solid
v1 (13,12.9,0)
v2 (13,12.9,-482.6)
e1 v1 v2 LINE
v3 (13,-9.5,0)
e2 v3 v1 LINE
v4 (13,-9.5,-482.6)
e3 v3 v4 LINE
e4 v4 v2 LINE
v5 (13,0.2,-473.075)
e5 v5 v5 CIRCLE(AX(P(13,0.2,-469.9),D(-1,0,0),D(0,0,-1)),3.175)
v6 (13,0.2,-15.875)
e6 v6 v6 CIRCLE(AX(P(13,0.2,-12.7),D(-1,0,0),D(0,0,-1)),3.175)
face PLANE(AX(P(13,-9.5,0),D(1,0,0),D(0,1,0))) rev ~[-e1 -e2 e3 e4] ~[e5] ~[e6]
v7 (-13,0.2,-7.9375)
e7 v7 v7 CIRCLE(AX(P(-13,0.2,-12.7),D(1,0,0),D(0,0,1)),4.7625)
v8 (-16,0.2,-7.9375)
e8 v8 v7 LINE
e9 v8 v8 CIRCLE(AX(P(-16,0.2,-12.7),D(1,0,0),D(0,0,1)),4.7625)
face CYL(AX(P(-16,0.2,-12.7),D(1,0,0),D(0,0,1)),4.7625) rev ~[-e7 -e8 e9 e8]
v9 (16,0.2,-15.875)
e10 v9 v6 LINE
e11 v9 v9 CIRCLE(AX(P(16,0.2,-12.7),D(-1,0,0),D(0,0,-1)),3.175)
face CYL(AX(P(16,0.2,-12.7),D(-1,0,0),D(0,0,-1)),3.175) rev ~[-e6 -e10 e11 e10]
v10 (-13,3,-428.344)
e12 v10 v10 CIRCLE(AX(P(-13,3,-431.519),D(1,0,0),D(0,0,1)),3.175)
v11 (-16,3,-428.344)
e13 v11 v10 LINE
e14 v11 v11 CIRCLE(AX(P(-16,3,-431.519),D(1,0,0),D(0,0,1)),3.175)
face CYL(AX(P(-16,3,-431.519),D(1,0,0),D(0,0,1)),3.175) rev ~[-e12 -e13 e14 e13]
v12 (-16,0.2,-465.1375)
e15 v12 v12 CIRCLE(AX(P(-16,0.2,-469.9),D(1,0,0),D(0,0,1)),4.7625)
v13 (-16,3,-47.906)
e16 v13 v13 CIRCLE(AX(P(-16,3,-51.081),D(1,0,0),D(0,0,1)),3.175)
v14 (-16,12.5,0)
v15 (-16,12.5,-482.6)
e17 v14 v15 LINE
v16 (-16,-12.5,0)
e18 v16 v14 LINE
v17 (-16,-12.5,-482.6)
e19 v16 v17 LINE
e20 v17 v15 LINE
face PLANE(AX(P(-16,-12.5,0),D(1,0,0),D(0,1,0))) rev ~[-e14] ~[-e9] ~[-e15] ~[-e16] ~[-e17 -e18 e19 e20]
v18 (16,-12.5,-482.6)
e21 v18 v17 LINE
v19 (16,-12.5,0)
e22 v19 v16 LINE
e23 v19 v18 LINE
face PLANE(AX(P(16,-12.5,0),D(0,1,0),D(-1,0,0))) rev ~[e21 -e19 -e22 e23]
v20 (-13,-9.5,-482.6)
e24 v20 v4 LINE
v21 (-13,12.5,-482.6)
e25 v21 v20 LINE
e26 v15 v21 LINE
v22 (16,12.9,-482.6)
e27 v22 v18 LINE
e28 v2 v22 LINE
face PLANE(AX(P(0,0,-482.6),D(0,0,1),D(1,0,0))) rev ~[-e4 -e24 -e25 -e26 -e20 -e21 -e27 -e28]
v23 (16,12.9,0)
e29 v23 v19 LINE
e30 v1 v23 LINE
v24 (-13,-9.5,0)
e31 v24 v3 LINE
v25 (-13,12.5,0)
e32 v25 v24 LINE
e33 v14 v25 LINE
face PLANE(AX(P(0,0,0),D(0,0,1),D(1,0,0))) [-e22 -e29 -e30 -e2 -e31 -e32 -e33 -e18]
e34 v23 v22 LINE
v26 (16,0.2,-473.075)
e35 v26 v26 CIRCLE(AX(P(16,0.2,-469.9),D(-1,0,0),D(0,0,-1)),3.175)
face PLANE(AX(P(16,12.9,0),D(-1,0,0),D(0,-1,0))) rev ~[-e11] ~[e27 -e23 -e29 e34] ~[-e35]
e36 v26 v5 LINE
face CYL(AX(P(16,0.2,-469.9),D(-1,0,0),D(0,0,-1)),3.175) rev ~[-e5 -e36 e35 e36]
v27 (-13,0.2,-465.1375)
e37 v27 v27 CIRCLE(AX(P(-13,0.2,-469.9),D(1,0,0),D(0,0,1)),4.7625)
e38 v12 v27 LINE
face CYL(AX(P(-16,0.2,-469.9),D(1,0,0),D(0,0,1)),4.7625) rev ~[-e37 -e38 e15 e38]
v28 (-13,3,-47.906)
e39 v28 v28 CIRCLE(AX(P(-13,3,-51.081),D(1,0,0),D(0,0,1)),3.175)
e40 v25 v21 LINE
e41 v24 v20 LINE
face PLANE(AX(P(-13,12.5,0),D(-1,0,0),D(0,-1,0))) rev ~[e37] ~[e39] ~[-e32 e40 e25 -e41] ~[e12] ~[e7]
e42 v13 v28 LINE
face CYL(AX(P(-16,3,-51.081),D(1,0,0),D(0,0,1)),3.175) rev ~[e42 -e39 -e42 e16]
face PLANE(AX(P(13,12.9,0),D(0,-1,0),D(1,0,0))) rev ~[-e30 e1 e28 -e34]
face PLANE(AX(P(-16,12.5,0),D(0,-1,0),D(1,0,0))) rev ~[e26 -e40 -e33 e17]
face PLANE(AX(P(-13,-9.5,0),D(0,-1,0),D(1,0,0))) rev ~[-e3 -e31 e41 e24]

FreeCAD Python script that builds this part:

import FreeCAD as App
import Part
import Sketcher
Q = App.Units.Quantity

doc = App.newDocument("Part")
body = doc.addObject("PartDesign::Body", "Body")

# Sketch on XY plane
sketch1 = body.newObject("Sketcher::SketchObject", "Sketch")
sketch1.AttachmentSupport = (doc.getObject("XY_Plane"), [""])
sketch1.MapMode = "FlatFace"
sketch1.addGeometry([
    Part.LineSegment(App.Vector(-13, 12.5, 0), App.Vector(-16, 12.5, 0)),  # 0
    Part.LineSegment(App.Vector(-16, 12.5, 0), App.Vector(-16, -12.5, 0)),  # 1
    Part.LineSegment(App.Vector(-16, -12.5, 0), App.Vector(16, -12.5, 0)),  # 2
    Part.LineSegment(App.Vector(16, -12.5, 0), App.Vector(16, 12.9, 0)),  # 3
    Part.LineSegment(App.Vector(16, 12.9, 0), App.Vector(13, 12.9, 0)),  # 4
    Part.LineSegment(App.Vector(13, 12.9, 0), App.Vector(13, -9.5, 0)),  # 5
    Part.LineSegment(App.Vector(13, -9.5, 0), App.Vector(-13, -9.5, 0)),  # 6
    Part.LineSegment(App.Vector(-13, -9.5, 0), App.Vector(-13, 12.5, 0)),  # 7
], False)
sketch1.addConstraint([
    Sketcher.Constraint("Coincident", 0, 2, 1, 1),
    Sketcher.Constraint("Coincident", 1, 2, 2, 1),
    Sketcher.Constraint("Coincident", 2, 2, 3, 1),
    Sketcher.Constraint("Coincident", 3, 2, 4, 1),
    Sketcher.Constraint("Coincident", 4, 2, 5, 1),
    Sketcher.Constraint("Coincident", 5, 2, 6, 1),
    Sketcher.Constraint("Coincident", 6, 2, 7, 1),
    Sketcher.Constraint("Coincident", 7, 2, 0, 1),
    Sketcher.Constraint("Horizontal", 0),
    Sketcher.Constraint("Vertical", 1),
    Sketcher.Constraint("Horizontal", 2),
    Sketcher.Constraint("Vertical", 3),
    Sketcher.Constraint("Horizontal", 4),
    Sketcher.Constraint("Vertical", 5),
    Sketcher.Constraint("Horizontal", 6),
    Sketcher.Constraint("Vertical", 7),
    Sketcher.Constraint("Symmetric", 0, 2, 2, 2, -1, 1),
    Sketcher.Constraint("Equal", 0, 4),
    Sketcher.Constraint("DistanceY", 3, 1, 3, 2, Q("1 in")),
    Sketcher.Constraint("DistanceX", 0, 2, 0, 1, Q("0.1181 in")),
    Sketcher.Constraint("DistanceX", 2, 1, 2, 2, Q("32 mm")),
    Sketcher.Constraint("DistanceY", 1, 2, 1, 1, Q("25 mm")),
    Sketcher.Constraint("DistanceY", 2, 2, 5, 2, Q("0.1181 in")),
])
pad1 = body.newObject("PartDesign::Pad", "Pad")
pad1.Profile = sketch1
pad1.Length = Q("19 in")
pad1.Reversed = True

# Sketch on YZ plane
sketch2 = body.newObject("Sketcher::SketchObject", "Sketch001")
sketch2.AttachmentSupport = (doc.getObject("YZ_Plane"), [""])
sketch2.MapMode = "FlatFace"
sketch2.AttachmentOffset = App.Placement(App.Vector(0, 0, 16), App.Rotation())
sketch2.addGeometry([
    Part.Circle(App.Vector(0.2, -12.7, 0), App.Vector(0, 0, 1), 3.2),
    Part.Circle(App.Vector(0.2, -469.9, 0), App.Vector(0, 0, 1), 3.2),
], False)
sketch2.addConstraint([
    Sketcher.Constraint("Equal", 0, 1),
    Sketcher.Constraint("Vertical", 0, 3, 1, 3),
    Sketcher.Constraint("Diameter", 0, Q("0.25 in")),
    Sketcher.Constraint("DistanceY", 1, 3, 0, 3, Q("18 in")),
    Sketcher.Constraint("DistanceY", 0, 3, -1, 1, Q("0.5 in")),
    Sketcher.Constraint("DistanceX", -1, 1, 0, 3, Q("0.2 mm")),
])
doc.recompute()
hole = body.newObject("PartDesign::Hole", "Hole")
hole.Profile = sketch2
hole.ThreadType = "None"
hole.Diameter = Q("0.25 in")
hole.DepthType = "Dimension"
hole.Depth = Q("0.5 in")
hole.DrillPoint = "Angled"
hole.DrillPointAngle = 118

# Sketch on YZ plane
sketch3 = body.newObject("Sketcher::SketchObject", "Sketch002")
sketch3.AttachmentSupport = (doc.getObject("YZ_Plane"), [""])
sketch3.MapMode = "FlatFace"
sketch3.AttachmentOffset = App.Placement(App.Vector(0, 0, -16), App.Rotation())
sketch3.addGeometry([
    Part.Circle(App.Vector(0.2, -469.9, 0), App.Vector(0, 0, 1), 4.8),
    Part.Circle(App.Vector(0.2, -12.7, 0), App.Vector(0, 0, 1), 4.8),
], False)
sketch3.addConstraint([
    Sketcher.Constraint("Equal", 0, 1),
    Sketcher.Constraint("Vertical", 0, 3, 1, 3),
    Sketcher.Constraint("Diameter", 0, Q("0.375 in")),
    Sketcher.Constraint("DistanceY", 0, 3, 1, 3, Q("18 in")),
    Sketcher.Constraint("DistanceY", 0, 3, -1, 1, Q("18.5 in")),
    Sketcher.Constraint("DistanceX", -1, 1, 0, 3, Q("0.2 mm")),
])
doc.recompute()
hole2 = body.newObject("PartDesign::Hole", "Hole001")
hole2.Profile = sketch3
hole2.ThreadType = "None"
hole2.Diameter = Q("0.375 in")
hole2.DepthType = "Dimension"
hole2.Depth = Q("0.1181102 in")
hole2.DrillPoint = "Angled"
hole2.DrillPointAngle = 118
hole2.Reversed = True

# Sketch on YZ plane
sketch4 = body.newObject("Sketcher::SketchObject", "Sketch003")
sketch4.AttachmentSupport = (doc.getObject("YZ_Plane"), [""])
sketch4.MapMode = "FlatFace"
sketch4.AttachmentOffset = App.Placement(App.Vector(0, 0, -16), App.Rotation())
sketch4.addGeometry([
    Part.Circle(App.Vector(3, -431.5, 0), App.Vector(0, 0, 1), 3.2),
    Part.Circle(App.Vector(3, -51.1, 0), App.Vector(0, 0, 1), 3.2),
], False)
sketch4.addConstraint([
    Sketcher.Constraint("Equal", 0, 1),
    Sketcher.Constraint("Vertical", 0, 3, 1, 3),
    Sketcher.Constraint("Diameter", 0, Q("0.25 in")),
    Sketcher.Constraint("DistanceX", -1, 1, 0, 3, Q("0.1181 in")),
    Sketcher.Constraint("DistanceY", 0, 3, -1, 1, Q("431.519 mm")),
    Sketcher.Constraint("DistanceY", 1, 3, -1, 1, Q("51.081 mm")),
])
doc.recompute()
hole3 = body.newObject("PartDesign::Hole", "Hole002")
hole3.Profile = sketch4
hole3.ThreadType = "None"
hole3.Diameter = Q("0.25 in")
hole3.DepthType = "Dimension"
hole3.Depth = Q("0.1181102 in")
hole3.DrillPoint = "Angled"
hole3.DrillPointAngle = 118
hole3.Reversed = True

doc.recompute()
